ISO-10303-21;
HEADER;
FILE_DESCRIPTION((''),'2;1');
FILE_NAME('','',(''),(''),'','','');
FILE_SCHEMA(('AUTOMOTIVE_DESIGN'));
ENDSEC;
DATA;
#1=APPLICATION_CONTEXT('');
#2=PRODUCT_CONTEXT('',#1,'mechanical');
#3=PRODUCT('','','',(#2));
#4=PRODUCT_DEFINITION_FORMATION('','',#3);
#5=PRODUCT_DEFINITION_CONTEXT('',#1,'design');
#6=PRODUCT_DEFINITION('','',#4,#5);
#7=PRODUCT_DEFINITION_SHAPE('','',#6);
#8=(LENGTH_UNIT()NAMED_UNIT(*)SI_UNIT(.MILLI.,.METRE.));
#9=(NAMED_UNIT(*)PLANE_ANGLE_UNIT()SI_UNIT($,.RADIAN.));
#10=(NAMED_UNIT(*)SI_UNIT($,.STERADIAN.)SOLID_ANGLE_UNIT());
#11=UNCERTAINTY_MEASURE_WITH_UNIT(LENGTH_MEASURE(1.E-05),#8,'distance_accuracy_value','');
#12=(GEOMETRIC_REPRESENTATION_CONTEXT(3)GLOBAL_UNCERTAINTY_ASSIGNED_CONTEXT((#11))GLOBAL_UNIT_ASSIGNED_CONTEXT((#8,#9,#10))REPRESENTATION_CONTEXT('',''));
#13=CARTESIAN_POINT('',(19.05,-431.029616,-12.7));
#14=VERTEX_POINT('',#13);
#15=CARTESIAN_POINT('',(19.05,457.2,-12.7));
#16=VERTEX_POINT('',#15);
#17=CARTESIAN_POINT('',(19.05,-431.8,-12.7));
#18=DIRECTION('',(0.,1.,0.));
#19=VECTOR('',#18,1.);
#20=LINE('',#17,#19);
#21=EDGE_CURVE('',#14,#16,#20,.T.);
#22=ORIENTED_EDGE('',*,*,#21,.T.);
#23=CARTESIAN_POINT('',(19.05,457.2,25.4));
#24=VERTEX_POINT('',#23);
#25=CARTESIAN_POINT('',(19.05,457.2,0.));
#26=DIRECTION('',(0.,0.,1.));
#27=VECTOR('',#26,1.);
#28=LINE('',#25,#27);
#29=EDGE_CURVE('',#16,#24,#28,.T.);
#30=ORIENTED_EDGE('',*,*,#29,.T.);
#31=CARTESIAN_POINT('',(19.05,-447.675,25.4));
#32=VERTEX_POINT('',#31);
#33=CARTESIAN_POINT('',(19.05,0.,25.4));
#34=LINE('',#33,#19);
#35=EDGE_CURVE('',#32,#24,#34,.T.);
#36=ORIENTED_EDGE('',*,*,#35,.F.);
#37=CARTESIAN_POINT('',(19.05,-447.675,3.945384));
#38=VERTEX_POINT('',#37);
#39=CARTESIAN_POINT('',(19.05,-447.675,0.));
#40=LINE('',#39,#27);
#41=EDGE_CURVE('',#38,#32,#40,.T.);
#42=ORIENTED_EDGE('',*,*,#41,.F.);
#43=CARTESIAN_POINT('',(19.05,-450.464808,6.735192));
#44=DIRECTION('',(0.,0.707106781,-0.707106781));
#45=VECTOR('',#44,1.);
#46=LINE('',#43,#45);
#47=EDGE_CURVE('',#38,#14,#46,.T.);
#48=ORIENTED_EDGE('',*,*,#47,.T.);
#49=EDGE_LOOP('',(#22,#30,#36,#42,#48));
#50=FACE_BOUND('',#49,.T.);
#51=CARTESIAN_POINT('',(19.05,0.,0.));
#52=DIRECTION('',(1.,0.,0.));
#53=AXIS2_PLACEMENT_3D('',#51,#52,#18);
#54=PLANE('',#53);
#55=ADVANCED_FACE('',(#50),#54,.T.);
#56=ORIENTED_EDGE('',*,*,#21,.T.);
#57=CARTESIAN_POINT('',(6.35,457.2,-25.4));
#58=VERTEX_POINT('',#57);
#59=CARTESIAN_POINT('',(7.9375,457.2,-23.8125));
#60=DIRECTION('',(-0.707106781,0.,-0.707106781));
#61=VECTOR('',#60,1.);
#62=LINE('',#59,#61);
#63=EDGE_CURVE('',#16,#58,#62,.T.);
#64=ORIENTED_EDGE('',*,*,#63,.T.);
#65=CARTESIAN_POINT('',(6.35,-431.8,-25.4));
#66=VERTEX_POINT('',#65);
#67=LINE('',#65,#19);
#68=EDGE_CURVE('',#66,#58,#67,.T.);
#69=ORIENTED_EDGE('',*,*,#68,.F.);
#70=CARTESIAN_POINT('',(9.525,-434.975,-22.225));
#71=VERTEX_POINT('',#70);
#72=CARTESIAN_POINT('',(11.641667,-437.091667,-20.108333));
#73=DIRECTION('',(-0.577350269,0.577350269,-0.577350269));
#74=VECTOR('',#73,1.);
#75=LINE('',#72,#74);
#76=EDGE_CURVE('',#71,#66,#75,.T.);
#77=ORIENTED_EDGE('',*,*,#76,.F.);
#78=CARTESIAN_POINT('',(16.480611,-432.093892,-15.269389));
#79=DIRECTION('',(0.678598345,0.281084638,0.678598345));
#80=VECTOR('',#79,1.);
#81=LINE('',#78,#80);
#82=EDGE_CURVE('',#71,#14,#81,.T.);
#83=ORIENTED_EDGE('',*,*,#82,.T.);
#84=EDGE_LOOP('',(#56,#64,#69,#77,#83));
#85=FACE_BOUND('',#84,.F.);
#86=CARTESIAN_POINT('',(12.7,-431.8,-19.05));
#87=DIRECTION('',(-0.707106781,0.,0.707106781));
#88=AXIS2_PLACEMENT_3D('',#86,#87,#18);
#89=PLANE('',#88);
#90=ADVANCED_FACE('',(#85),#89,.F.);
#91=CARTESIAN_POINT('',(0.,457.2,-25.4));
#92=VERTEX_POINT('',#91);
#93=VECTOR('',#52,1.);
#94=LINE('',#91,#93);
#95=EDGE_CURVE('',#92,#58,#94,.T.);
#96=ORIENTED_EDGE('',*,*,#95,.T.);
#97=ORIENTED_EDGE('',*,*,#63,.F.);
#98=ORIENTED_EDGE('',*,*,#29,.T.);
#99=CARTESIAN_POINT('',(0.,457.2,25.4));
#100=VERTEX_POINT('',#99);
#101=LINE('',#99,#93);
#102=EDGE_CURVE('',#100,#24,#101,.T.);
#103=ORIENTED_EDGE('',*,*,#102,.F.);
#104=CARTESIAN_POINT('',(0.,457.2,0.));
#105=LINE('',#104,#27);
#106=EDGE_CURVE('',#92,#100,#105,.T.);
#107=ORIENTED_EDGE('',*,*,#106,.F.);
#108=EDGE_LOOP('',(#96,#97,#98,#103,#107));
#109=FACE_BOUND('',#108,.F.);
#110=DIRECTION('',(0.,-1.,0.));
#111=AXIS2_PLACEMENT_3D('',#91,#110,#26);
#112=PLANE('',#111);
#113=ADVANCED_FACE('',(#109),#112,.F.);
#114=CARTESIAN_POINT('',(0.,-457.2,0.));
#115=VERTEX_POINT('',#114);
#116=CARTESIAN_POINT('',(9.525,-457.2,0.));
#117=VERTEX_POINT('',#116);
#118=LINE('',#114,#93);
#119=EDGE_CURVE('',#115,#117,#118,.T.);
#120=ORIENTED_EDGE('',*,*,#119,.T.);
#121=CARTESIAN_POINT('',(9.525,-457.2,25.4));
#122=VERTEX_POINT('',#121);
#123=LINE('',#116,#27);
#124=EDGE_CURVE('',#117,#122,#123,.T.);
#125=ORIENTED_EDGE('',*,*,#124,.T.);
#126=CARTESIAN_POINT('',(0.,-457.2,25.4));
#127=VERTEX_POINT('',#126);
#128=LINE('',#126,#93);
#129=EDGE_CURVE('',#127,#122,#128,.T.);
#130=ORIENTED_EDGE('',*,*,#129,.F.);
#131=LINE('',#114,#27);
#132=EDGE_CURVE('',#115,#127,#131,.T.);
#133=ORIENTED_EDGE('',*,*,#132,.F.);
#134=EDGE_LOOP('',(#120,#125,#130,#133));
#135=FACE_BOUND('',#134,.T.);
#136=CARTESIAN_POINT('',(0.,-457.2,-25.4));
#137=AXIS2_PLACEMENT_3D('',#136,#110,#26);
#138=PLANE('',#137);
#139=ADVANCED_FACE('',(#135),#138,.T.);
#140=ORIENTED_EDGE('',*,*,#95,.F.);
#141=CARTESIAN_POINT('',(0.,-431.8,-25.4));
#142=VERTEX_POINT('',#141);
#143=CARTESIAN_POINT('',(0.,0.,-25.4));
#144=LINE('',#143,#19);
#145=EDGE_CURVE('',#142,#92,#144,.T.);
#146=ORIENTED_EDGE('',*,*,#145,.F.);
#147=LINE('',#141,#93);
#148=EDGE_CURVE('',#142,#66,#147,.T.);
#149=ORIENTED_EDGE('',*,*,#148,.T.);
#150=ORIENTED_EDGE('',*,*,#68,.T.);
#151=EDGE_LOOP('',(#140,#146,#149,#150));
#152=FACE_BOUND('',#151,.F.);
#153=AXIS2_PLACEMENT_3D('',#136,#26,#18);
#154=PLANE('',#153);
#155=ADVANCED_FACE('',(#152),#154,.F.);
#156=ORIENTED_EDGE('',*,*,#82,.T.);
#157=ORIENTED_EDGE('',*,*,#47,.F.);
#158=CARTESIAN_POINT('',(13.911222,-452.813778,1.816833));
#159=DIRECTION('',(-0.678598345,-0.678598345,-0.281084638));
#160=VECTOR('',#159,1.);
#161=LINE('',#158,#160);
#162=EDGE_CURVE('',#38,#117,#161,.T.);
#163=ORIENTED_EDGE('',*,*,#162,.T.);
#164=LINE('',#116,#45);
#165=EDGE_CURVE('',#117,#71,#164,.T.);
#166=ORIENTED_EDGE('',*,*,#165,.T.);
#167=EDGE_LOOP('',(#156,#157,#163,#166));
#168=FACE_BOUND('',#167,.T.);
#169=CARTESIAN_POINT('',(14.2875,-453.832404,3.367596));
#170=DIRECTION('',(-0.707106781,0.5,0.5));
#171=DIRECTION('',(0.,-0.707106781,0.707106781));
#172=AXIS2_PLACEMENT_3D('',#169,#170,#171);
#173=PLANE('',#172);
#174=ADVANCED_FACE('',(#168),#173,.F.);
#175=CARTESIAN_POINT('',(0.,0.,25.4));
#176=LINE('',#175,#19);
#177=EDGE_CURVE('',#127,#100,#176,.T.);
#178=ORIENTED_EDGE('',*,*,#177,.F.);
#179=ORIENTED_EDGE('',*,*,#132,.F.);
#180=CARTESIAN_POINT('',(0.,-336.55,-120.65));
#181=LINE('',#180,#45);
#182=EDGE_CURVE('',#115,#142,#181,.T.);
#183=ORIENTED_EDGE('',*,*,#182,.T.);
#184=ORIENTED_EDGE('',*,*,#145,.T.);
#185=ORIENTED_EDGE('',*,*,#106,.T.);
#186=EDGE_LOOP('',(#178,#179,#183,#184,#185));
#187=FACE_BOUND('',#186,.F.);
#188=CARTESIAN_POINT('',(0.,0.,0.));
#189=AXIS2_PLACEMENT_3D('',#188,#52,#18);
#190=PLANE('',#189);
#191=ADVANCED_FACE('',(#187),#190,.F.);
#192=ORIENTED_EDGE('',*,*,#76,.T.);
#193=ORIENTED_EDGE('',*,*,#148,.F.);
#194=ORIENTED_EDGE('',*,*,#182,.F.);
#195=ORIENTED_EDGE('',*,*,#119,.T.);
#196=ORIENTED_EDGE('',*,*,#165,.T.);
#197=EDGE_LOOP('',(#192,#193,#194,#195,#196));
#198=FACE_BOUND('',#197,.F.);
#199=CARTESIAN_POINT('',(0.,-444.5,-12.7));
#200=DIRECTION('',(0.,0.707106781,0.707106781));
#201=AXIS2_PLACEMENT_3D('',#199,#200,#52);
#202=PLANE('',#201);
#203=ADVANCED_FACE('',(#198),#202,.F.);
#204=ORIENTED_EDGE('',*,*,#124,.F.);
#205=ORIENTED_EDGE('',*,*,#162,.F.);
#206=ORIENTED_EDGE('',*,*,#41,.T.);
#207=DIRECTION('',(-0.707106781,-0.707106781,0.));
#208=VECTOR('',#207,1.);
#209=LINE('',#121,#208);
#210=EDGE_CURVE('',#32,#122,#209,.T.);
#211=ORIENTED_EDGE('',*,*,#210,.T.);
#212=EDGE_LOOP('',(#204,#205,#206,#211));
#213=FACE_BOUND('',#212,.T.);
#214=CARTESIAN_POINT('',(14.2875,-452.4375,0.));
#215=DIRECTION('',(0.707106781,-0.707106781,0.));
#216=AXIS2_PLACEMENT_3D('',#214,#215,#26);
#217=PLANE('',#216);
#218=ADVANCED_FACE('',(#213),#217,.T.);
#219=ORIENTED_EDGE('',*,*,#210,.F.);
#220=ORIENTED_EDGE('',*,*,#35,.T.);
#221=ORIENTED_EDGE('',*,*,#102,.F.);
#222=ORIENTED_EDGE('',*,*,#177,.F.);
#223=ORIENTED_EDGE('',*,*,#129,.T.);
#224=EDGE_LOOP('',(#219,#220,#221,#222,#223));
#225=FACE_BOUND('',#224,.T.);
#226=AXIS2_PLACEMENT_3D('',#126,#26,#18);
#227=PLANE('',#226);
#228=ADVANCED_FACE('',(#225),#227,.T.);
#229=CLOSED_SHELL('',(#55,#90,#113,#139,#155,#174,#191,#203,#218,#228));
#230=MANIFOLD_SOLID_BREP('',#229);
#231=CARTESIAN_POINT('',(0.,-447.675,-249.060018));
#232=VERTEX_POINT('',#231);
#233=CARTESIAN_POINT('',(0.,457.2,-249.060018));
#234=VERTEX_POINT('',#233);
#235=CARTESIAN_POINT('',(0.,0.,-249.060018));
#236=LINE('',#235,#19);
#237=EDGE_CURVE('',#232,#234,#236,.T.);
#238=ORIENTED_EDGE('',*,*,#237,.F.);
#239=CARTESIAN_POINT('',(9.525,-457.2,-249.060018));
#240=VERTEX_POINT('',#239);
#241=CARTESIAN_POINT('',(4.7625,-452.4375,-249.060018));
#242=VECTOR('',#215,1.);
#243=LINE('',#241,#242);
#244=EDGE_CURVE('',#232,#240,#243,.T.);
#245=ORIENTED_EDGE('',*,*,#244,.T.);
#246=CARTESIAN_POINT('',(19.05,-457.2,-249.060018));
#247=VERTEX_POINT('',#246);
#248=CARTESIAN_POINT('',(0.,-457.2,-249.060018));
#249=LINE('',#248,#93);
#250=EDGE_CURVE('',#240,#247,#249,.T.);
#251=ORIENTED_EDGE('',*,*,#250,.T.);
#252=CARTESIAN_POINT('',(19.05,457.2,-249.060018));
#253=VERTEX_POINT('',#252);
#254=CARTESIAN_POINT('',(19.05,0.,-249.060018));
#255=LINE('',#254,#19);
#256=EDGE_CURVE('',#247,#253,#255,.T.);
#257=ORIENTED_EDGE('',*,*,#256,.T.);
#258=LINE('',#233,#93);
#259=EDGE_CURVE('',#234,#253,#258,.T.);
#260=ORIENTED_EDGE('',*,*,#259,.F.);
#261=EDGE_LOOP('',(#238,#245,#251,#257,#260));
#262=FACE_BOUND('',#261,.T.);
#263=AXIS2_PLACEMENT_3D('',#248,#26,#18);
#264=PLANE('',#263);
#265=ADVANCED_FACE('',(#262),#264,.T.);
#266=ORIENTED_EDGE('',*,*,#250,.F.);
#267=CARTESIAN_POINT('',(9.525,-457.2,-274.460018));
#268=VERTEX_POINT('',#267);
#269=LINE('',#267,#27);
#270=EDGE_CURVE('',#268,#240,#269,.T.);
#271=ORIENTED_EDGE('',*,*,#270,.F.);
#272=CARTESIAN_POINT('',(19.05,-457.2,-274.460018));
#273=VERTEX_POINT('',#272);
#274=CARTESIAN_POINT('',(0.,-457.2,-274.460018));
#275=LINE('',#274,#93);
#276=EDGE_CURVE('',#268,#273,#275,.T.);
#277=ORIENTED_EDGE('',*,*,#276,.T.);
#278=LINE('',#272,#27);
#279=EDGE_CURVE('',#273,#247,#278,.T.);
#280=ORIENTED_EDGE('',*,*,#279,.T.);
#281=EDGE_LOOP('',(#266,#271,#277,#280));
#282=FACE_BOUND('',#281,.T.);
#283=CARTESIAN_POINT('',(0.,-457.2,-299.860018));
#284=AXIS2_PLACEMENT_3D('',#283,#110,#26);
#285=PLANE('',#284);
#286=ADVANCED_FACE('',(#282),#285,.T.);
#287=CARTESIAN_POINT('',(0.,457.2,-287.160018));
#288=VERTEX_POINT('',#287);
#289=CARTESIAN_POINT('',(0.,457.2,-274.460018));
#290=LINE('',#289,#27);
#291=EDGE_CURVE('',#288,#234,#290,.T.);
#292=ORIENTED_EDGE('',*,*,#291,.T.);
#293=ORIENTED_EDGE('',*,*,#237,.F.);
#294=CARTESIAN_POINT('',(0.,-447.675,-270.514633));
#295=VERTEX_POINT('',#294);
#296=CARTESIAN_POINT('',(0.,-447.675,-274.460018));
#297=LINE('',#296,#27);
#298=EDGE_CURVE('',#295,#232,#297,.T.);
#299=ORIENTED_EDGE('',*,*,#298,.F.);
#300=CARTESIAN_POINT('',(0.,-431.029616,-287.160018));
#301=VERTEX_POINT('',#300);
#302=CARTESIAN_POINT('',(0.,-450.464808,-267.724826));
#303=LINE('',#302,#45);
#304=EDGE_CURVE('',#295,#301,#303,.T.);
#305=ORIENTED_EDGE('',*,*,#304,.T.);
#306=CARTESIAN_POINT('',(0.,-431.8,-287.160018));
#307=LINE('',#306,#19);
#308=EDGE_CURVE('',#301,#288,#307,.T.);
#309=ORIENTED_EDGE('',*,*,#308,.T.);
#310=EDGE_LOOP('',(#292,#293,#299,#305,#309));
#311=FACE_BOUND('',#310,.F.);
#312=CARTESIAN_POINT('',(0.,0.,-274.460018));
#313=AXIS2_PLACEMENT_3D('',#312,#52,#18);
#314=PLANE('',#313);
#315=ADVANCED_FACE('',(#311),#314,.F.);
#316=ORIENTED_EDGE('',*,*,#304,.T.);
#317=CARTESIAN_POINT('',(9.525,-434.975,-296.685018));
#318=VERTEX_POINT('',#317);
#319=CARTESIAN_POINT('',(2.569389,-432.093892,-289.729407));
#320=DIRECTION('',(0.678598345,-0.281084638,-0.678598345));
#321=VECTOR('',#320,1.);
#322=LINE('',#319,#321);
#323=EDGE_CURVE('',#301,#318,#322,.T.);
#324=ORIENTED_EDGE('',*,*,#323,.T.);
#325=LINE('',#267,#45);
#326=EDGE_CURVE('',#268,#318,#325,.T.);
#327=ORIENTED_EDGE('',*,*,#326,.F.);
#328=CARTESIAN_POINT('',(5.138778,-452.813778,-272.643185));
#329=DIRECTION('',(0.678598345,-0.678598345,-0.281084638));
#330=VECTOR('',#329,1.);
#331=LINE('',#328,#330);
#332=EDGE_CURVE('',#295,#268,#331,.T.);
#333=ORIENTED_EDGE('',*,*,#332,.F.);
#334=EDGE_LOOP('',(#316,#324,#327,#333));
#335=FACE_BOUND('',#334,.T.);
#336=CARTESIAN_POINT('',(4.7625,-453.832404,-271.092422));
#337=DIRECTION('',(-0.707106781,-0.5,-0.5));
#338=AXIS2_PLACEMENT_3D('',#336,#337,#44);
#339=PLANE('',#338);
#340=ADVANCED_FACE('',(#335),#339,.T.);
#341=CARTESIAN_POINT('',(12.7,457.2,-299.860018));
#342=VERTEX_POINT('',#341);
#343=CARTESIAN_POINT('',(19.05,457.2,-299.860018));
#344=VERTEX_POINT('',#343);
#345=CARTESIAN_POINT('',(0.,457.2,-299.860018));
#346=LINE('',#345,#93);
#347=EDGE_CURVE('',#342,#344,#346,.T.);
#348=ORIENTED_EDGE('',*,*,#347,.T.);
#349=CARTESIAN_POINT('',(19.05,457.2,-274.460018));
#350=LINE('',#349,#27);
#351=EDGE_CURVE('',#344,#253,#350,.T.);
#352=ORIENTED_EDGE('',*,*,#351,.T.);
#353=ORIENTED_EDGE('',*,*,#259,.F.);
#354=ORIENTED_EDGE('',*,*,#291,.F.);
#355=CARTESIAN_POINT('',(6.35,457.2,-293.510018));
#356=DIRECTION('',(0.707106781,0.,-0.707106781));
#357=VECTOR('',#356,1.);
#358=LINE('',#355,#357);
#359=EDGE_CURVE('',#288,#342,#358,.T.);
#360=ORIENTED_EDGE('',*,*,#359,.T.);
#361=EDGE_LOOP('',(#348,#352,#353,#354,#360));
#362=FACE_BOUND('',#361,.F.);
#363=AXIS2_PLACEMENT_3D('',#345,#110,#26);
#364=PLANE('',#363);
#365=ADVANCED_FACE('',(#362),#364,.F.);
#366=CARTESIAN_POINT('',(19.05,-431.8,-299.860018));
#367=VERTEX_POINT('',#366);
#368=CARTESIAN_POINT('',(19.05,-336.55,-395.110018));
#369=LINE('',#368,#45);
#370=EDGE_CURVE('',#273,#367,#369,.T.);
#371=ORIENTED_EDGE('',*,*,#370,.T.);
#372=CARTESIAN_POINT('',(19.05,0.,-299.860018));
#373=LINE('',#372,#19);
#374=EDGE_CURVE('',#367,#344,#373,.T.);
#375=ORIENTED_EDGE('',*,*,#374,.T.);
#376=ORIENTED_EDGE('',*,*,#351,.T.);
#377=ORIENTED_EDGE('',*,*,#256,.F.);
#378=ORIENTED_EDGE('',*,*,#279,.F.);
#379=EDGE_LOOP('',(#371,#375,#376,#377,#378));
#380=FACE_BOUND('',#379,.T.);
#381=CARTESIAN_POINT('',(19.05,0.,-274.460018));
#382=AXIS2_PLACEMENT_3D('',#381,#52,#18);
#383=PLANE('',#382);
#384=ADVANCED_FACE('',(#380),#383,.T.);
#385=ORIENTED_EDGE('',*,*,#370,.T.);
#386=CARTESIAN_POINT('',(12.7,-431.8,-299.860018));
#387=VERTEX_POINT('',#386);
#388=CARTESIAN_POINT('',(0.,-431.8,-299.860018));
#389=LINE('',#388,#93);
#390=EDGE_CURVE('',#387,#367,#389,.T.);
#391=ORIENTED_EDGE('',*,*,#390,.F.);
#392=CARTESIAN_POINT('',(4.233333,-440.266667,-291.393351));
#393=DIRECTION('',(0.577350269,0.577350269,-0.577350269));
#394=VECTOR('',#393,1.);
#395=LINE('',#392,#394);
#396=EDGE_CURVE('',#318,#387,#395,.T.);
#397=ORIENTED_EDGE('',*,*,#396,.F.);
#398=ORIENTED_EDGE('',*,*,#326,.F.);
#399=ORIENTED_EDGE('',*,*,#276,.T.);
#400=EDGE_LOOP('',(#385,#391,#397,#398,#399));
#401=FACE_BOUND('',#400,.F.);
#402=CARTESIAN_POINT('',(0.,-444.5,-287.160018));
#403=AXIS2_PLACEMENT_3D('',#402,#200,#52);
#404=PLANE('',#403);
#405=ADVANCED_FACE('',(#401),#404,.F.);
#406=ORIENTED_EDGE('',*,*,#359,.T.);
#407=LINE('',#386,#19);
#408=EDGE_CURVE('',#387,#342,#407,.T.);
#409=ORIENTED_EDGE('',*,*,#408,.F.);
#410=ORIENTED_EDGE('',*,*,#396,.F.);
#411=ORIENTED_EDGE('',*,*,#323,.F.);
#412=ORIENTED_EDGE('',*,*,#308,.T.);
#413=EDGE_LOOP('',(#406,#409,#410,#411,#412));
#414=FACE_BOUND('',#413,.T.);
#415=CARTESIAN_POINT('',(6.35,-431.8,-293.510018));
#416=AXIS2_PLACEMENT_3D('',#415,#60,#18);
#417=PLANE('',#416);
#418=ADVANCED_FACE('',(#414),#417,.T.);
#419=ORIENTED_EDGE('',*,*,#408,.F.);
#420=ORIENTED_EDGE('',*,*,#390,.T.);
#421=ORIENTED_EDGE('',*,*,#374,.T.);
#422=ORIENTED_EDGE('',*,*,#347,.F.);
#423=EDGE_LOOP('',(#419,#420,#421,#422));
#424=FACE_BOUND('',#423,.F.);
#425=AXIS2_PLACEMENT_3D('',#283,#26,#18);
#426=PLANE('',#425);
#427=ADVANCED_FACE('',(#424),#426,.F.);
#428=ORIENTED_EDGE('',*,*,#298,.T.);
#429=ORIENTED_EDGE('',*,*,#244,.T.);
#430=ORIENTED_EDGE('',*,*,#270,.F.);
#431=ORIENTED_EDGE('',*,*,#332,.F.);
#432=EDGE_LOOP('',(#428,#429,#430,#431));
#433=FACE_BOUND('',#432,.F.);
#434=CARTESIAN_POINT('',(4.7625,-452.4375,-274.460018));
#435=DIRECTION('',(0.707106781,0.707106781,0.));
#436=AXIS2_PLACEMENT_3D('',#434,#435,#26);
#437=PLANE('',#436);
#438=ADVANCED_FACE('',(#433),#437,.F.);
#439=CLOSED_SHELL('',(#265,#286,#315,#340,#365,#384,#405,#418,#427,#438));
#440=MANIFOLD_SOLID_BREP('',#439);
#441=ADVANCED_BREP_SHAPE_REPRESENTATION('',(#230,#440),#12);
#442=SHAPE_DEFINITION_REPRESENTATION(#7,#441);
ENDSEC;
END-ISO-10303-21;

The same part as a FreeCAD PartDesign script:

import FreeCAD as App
import Part
import Sketcher
from FreeCAD import Vector
Q = App.Units.Quantity


def edges_at(feature, points):
    """Names of the edges that pass closest to the given points."""
    edges = feature.Shape.Edges
    near = lambda p: min(range(len(edges)), key=lambda i: edges[i].distToShape(Part.Vertex(*p))[0])
    return sorted({f"Edge{near(p) + 1}" for p in points})


def add_polygon(sketch, points):
    """Adds a closed chain of lines whose ends are joined by coincident constraints."""
    first, n = sketch.GeometryCount, len(points)
    for a, b in zip(points, points[1:] + points[:1]):
        sketch.addGeometry(Part.LineSegment(App.Vector(*a, 0), App.Vector(*b, 0)), False)
    for i in range(n):
        sketch.addConstraint(Sketcher.Constraint("Coincident", first + i, 2, first + (i + 1) % n, 1))

doc = App.newDocument("Part")
body = doc.addObject("PartDesign::Body", "Body")

sketch1 = body.newObject("Sketcher::SketchObject", "Sketch")
sketch1.AttachmentSupport = (doc.getObject("YZ_Plane"), [""])
sketch1.MapMode = "FlatFace"
add_polygon(sketch1, [(-457, 25), (-457, -25), (457, -25), (457, 25)])
sketch1.addConstraint([
    Sketcher.Constraint("Vertical", 0),
    Sketcher.Constraint("Horizontal", 1),
    Sketcher.Constraint("Vertical", 2),
    Sketcher.Constraint("Horizontal", 3),
    Sketcher.Constraint("Symmetric", 0, 2, 2, 2, -1, 1),
    Sketcher.Constraint("DistanceX", 1, 1, 1, 2, Q("36 in")),
    Sketcher.Constraint("DistanceY", 0, 2, 0, 1, Q("2 in")),
])
pad1 = body.newObject("PartDesign::Pad", "Pad")
pad1.Profile = sketch1
pad1.Length = Q("0.75 in")
doc.recompute()

chamfer = body.newObject("PartDesign::Chamfer", "Chamfer")
chamfer.Base = (pad1, edges_at(pad1, [(9.525, -457.2, -25.4)]))
chamfer.Size = Q("1 in")
doc.recompute()

chamfer2 = body.newObject("PartDesign::Chamfer", "Chamfer001")
chamfer2.Base = (chamfer, edges_at(chamfer, [(19.05, 12.7, -25.4)]))
chamfer2.Size = Q("0.5 in")
doc.recompute()

chamfer3 = body.newObject("PartDesign::Chamfer", "Chamfer002")
chamfer3.Base = (chamfer2, edges_at(chamfer2, [(19.05, -457.2, 12.7), (19.05, -450.85, -6.35)]))
chamfer3.Size = Q("0.375 in")
body2 = doc.addObject("PartDesign::Body", "Body001")

sketch2 = body2.newObject("Sketcher::SketchObject", "Sketch001")
sketch2.AttachmentSupport = (doc.getObject("YZ_Plane001"), [""])
sketch2.MapMode = "FlatFace"
add_polygon(sketch2, [(-457, -249), (-457, -300), (457, -300), (457, -249)])
sketch2.addConstraint([
    Sketcher.Constraint("Vertical", 0),
    Sketcher.Constraint("Horizontal", 1),
    Sketcher.Constraint("Vertical", 2),
    Sketcher.Constraint("Horizontal", 3),
    Sketcher.Constraint("DistanceX", 1, 1, 1, 2, Q("36 in")),
    Sketcher.Constraint("DistanceY", 0, 2, 0, 1, Q("2 in")),
    Sketcher.Constraint("DistanceX", 0, 2, -1, 1, Q("18 in")),
    Sketcher.Constraint("DistanceY", 0, 2, -1, 1, Q("299.860018 mm")),
])
pad2 = body2.newObject("PartDesign::Pad", "Pad001")
pad2.Profile = sketch2
pad2.Length = Q("0.75 in")
doc.recompute()

chamfer4 = body2.newObject("PartDesign::Chamfer", "Chamfer003")
chamfer4.Base = (pad2, edges_at(pad2, [(9.525, -457.2, -299.86)]))
chamfer4.Size = Q("1 in")
doc.recompute()

chamfer5 = body2.newObject("PartDesign::Chamfer", "Chamfer004")
chamfer5.Base = (chamfer4, edges_at(chamfer4, [(0, 12.7, -299.86)]))
chamfer5.Size = Q("0.5 in")
doc.recompute()

chamfer6 = body2.newObject("PartDesign::Chamfer", "Chamfer005")
chamfer6.Base = (chamfer5, edges_at(chamfer5, [(0, -450.85, -280.81), (0, -457.2, -261.76)]))
chamfer6.Size = Q("0.375 in")

doc.recompute()
